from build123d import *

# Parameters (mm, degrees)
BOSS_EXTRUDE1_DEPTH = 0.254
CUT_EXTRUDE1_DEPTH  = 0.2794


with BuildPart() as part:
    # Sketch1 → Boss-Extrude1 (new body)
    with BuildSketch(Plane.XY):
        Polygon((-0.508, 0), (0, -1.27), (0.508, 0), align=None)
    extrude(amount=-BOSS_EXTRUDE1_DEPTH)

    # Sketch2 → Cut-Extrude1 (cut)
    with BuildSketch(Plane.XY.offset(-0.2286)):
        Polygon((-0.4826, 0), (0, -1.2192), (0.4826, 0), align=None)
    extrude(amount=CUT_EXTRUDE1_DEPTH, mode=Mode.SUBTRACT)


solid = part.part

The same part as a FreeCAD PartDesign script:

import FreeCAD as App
import Part
import Sketcher
Q = App.Units.Quantity


def add_polygon(sketch, points):
    """Adds a closed chain of lines whose ends are joined by coincident constraints."""
    first, n = sketch.GeometryCount, len(points)
    for a, b in zip(points, points[1:] + points[:1]):
        sketch.addGeometry(Part.LineSegment(App.Vector(*a, 0), App.Vector(*b, 0)), False)
    for i in range(n):
        sketch.addConstraint(Sketcher.Constraint("Coincident", first + i, 2, first + (i + 1) % n, 1))

doc = App.newDocument("Part")
body = doc.addObject("PartDesign::Body", "Body")

# Sketch on XY plane
sketch1 = body.newObject("Sketcher::SketchObject", "Sketch")
sketch1.AttachmentSupport = (doc.getObject("XY_Plane"), [""])
sketch1.MapMode = "FlatFace"
add_polygon(sketch1, [(-0.508, 0), (0, -1.27), (0.508, 0)])  # lines 0-2
sketch1.addConstraint([
    Sketcher.Constraint("Horizontal", 2),
    Sketcher.Constraint("Symmetric", 1, 2, 2, 2, -1, 1),
    Sketcher.Constraint("PointOnObject", 0, 2, -2),
    Sketcher.Constraint("DistanceX", 2, 2, 2, 1, Q("0.04 in")),
    Sketcher.Constraint("DistanceY", 0, 2, -1, 1, Q("0.05 in")),
])
pad1 = body.newObject("PartDesign::Pad", "Pad")
pad1.Profile = sketch1
pad1.Length = Q("0.01 in")
pad1.Reversed = True

# Sketch on XY plane
sketch2 = body.newObject("Sketcher::SketchObject", "Sketch001")
sketch2.AttachmentSupport = (doc.getObject("XY_Plane"), [""])
sketch2.MapMode = "FlatFace"
sketch2.AttachmentOffset = App.Placement(App.Vector(0, 0, -0.009 * 25.4), App.Rotation())
add_polygon(sketch2, [(-0.4826, 0), (0, -1.2192), (0.4826, 0)])  # lines 0-2
sketch2.addConstraint([
    Sketcher.Constraint("Horizontal", 2),
    Sketcher.Constraint("Symmetric", 1, 2, 2, 2, -1, 1),
    Sketcher.Constraint("PointOnObject", 0, 2, -2),
    Sketcher.Constraint("DistanceX", 2, 2, 2, 1, Q("0.038 in")),
    Sketcher.Constraint("DistanceY", 0, 2, -1, 1, Q("0.048 in")),
])
pocket1 = body.newObject("PartDesign::Pocket", "Pocket")
pocket1.Profile = sketch2
pocket1.Length = Q("0.011 in")
pocket1.Reversed = True

doc.recompute()
